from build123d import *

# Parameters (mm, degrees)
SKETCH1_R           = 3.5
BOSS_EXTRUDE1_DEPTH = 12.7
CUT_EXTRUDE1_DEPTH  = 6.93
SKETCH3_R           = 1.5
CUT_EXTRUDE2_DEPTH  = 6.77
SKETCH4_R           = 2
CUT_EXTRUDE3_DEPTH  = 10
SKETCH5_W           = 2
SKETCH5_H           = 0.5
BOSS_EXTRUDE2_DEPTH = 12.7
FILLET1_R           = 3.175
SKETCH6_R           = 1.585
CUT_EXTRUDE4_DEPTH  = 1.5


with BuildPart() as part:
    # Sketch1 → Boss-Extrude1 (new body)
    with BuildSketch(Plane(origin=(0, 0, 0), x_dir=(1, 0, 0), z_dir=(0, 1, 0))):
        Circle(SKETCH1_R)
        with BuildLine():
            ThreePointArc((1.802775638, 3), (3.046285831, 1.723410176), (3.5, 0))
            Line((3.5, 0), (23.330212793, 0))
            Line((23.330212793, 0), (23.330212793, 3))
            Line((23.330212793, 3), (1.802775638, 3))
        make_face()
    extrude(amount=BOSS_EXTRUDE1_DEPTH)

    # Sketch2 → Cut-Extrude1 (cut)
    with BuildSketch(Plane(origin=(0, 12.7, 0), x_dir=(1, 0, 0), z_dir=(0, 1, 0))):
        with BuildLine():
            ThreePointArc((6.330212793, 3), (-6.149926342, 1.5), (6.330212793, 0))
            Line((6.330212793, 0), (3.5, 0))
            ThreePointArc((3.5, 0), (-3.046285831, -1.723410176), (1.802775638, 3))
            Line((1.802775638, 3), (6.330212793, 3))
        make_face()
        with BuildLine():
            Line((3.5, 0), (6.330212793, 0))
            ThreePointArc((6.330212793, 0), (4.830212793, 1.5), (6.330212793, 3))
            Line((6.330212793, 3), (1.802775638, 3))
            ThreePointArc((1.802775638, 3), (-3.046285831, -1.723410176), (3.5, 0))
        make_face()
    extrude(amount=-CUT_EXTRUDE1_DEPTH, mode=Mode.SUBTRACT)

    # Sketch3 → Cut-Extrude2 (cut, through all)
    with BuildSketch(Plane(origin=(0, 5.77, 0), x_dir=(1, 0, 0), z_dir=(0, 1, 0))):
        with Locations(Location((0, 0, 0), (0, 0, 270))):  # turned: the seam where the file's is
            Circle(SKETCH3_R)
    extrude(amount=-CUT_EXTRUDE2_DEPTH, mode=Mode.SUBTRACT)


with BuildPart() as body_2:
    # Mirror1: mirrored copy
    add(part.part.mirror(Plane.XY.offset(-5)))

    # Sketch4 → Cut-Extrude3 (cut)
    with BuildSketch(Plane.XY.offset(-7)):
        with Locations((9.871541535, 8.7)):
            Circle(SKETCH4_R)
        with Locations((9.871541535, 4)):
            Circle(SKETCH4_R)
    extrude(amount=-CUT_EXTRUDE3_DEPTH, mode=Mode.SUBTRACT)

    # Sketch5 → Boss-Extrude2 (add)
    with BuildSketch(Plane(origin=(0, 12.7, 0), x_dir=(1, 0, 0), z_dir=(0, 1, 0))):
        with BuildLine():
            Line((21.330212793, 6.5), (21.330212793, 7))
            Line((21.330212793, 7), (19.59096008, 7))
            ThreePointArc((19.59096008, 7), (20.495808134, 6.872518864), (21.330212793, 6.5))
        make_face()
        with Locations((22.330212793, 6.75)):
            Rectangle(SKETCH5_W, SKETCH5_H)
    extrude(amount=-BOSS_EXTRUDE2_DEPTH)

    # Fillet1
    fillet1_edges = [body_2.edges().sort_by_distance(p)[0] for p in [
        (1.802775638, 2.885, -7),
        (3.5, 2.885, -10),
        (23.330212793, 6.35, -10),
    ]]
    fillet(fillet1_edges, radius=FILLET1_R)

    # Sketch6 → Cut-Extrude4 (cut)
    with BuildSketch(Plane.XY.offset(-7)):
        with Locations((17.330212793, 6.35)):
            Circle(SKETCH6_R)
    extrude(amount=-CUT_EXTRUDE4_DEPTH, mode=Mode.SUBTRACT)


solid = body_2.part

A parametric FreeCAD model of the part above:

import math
import FreeCAD as App
import Part
import Sketcher


def edges_at(feature, points):
    """Names of the edges that pass closest to the given points."""
    edges = feature.Shape.Edges
    near = lambda p: min(range(len(edges)), key=lambda i: edges[i].distToShape(Part.Vertex(*p))[0])
    return sorted({f"Edge{near(p) + 1}" for p in points})

doc = App.newDocument("Part")
body = doc.addObject("PartDesign::Body", "Body")

# Sketch on XZ plane
sketch1 = body.newObject("Sketcher::SketchObject", "Sketch")
sketch1.AttachmentSupport = (doc.getObject("XZ_Plane"), [""])
sketch1.MapMode = "FlatFace"
sketch1.addGeometry([
    Part.ArcOfCircle(Part.Circle(App.Vector(0, 0, 0), App.Vector(0, 0, 1), 3.5), math.radians(0), math.radians(301)),
    Part.LineSegment(App.Vector(3.5, 0, 0), App.Vector(23.3, 0, 0)),
    Part.LineSegment(App.Vector(23.3, 0, 0), App.Vector(23.3, -3, 0)),
    Part.LineSegment(App.Vector(23.3, -3, 0), App.Vector(1.8, -3, 0)),
], False)
sketch1.addConstraint([
    Sketcher.Constraint("Coincident", 0, 1, 1, 1),
    Sketcher.Constraint("Coincident", 1, 2, 2, 1),
    Sketcher.Constraint("Coincident", 2, 2, 3, 1),
    Sketcher.Constraint("Coincident", 3, 2, 0, 2),
    Sketcher.Constraint("Horizontal", 1),
    Sketcher.Constraint("Vertical", 2),
    Sketcher.Constraint("Horizontal", 3),
    Sketcher.Constraint("Coincident", 0, 3, -1, 1),
    Sketcher.Constraint("PointOnObject", 0, 1, -1),
    Sketcher.Constraint("Radius", 0, 3.5),
    Sketcher.Constraint("DistanceY", 2, 2, 2, 1, 3.0),
    Sketcher.Constraint("DistanceX", 1, 1, 1, 2, 19.830213),
])
pad1 = body.newObject("PartDesign::Pad", "Pad")
pad1.Profile = sketch1
pad1.Length = 12.7
pad1.Reversed = True

# Sketch on XZ plane
sketch2 = body.newObject("Sketcher::SketchObject", "Sketch001")
sketch2.AttachmentSupport = (doc.getObject("XZ_Plane"), [""])
sketch2.MapMode = "FlatFace"
sketch2.AttachmentOffset = App.Placement(App.Vector(0, 0, -12.7), App.Rotation())
sketch2.addGeometry([
    Part.ArcOfCircle(Part.Circle(App.Vector(0.2, -1.5, 0), App.Vector(0, 0, 1), 6.3), math.radians(14), math.radians(346)),
    Part.ArcOfCircle(Part.Circle(App.Vector(6.3, -1.5, 0), App.Vector(0, 0, 1), 1.5), math.radians(90), math.radians(270)),
], False)
sketch2.addConstraint([
    Sketcher.Constraint("Coincident", 0, 1, 1, 1),
    Sketcher.Constraint("Coincident", 1, 2, 0, 2),
    Sketcher.Constraint("PointOnObject", 0, 1, -1),
    Sketcher.Constraint("Horizontal", 0, 3, 1, 3),
    Sketcher.Constraint("Vertical", 1, 3, 0, 1),
    Sketcher.Constraint("Radius", 1, 1.5),
    Sketcher.Constraint("Radius", 0, 6.330213),
    Sketcher.Constraint("DistanceX", -1, 1, 0, 3, 0.180286),
])
pocket1 = body.newObject("PartDesign::Pocket", "Pocket")
pocket1.Profile = sketch2
pocket1.Length = 6.93
pocket1.Reversed = True

# Sketch on XZ plane
sketch3 = body.newObject("Sketcher::SketchObject", "Sketch002")
sketch3.AttachmentSupport = (doc.getObject("XZ_Plane"), [""])
sketch3.MapMode = "FlatFace"
sketch3.AttachmentOffset = App.Placement(App.Vector(0, 0, -5.77), App.Rotation())
sketch3.addGeometry(Part.Circle(App.Vector(0, 0, 0), App.Vector(0, 0, 1), 1.5), False)
sketch3.addConstraint([
    Sketcher.Constraint("Coincident", 0, 3, -1, 1),
    Sketcher.Constraint("Diameter", 0, 3.0),
])
pocket2 = body.newObject("PartDesign::Pocket", "Pocket001")
pocket2.Profile = sketch3
pocket2.Type = "ThroughAll"
pocket2.Reversed = True
body2 = doc.addObject("PartDesign::Body", "Body001")
doc.recompute()

mirroring = doc.addObject("Part::Mirroring", "Mirroring")
mirroring.Source = body
mirroring.Base = App.Vector(0, 0, -5)
mirroring.Normal = App.Vector(0, 0, 1)
body2.BaseFeature = mirroring
doc.recompute()

# Sketch on XY plane
sketch4 = body2.newObject("Sketcher::SketchObject", "Sketch003")
sketch4.AttachmentSupport = (doc.getObject("XY_Plane001"), [""])
sketch4.MapMode = "FlatFace"
sketch4.AttachmentOffset = App.Placement(App.Vector(0, 0, -7), App.Rotation())
sketch4.addGeometry([
    Part.Circle(App.Vector(9.9, 8.7, 0), App.Vector(0, 0, 1), 2),
    Part.Circle(App.Vector(9.9, 4, 0), App.Vector(0, 0, 1), 2),
], False)
sketch4.addConstraint([
    Sketcher.Constraint("Equal", 0, 1),
    Sketcher.Constraint("Vertical", 0, 3, 1, 3),
    Sketcher.Constraint("Diameter", 0, 4.0),
    Sketcher.Constraint("DistanceY", -1, 1, 1, 3, 4.0),
    Sketcher.Constraint("DistanceY", -1, 1, 0, 3, 8.7),
    Sketcher.Constraint("DistanceX", -1, 1, 0, 3, 9.871542),
])
pocket3 = body2.newObject("PartDesign::Pocket", "Pocket002")
pocket3.Profile = sketch4
pocket3.Length = 10

# Sketch on XZ plane
sketch5 = body2.newObject("Sketcher::SketchObject", "Sketch004")
sketch5.AttachmentSupport = (doc.getObject("XZ_Plane001"), [""])
sketch5.MapMode = "FlatFace"
sketch5.AttachmentOffset = App.Placement(App.Vector(0, 0, -12.7), App.Rotation())
sketch5.addGeometry([
    Part.ArcOfCircle(Part.Circle(App.Vector(19.6, -3.7, 0), App.Vector(0, 0, 1), 3.3), math.radians(-90), math.radians(-58)),
    Part.LineSegment(App.Vector(21.3, -6.5, 0), App.Vector(23.3, -6.5, 0)),
    Part.LineSegment(App.Vector(23.3, -6.5, 0), App.Vector(23.3, -7, 0)),
    Part.LineSegment(App.Vector(23.3, -7, 0), App.Vector(19.6, -7, 0)),
], False)
sketch5.addConstraint([
    Sketcher.Constraint("Coincident", 0, 2, 1, 1),
    Sketcher.Constraint("Coincident", 1, 2, 2, 1),
    Sketcher.Constraint("Coincident", 2, 2, 3, 1),
    Sketcher.Constraint("Tangent", 3, 2, 0, 1),
    Sketcher.Constraint("Horizontal", 1),
    Sketcher.Constraint("Vertical", 2),
    Sketcher.Constraint("Horizontal", 3),
    Sketcher.Constraint("DistanceX", 1, 1, 1, 2, 2.0),
    Sketcher.Constraint("DistanceY", 2, 2, 2, 1, 0.5),
    Sketcher.Constraint("DistanceY", 2, 2, -1, 1, 7.0),
    Sketcher.Constraint("Radius", 0, 3.275),
    Sketcher.Constraint("DistanceX", -1, 1, 0, 3, 19.59096),
])
pad2 = body2.newObject("PartDesign::Pad", "Pad001")
pad2.Profile = sketch5
pad2.Length = 12.7
doc.recompute()

fillet = body2.newObject("PartDesign::Fillet", "Fillet")
fillet.Base = (pad2, edges_at(pad2, [(1.803, 2.885, -7), (3.5, 2.885, -10), (23.33, 6.35, -10)]))
fillet.Radius = 3.175

# Sketch on XY plane
sketch6 = body2.newObject("Sketcher::SketchObject", "Sketch005")
sketch6.AttachmentSupport = (doc.getObject("XY_Plane001"), [""])
sketch6.MapMode = "FlatFace"
sketch6.AttachmentOffset = App.Placement(App.Vector(0, 0, -7), App.Rotation())
sketch6.addGeometry(Part.Circle(App.Vector(17.3, 6.3, 0), App.Vector(0, 0, 1), 1.6), False)
sketch6.addConstraint([
    Sketcher.Constraint("Diameter", 0, 3.17),
    Sketcher.Constraint("DistanceY", -1, 1, 0, 3, 6.35),
    Sketcher.Constraint("DistanceX", -1, 1, 0, 3, 17.330213),
])
pocket4 = body2.newObject("PartDesign::Pocket", "Pocket003")
pocket4.Profile = sketch6
pocket4.Length = 1.5
body.Visibility = False
mirroring.Visibility = False

doc.recompute()
